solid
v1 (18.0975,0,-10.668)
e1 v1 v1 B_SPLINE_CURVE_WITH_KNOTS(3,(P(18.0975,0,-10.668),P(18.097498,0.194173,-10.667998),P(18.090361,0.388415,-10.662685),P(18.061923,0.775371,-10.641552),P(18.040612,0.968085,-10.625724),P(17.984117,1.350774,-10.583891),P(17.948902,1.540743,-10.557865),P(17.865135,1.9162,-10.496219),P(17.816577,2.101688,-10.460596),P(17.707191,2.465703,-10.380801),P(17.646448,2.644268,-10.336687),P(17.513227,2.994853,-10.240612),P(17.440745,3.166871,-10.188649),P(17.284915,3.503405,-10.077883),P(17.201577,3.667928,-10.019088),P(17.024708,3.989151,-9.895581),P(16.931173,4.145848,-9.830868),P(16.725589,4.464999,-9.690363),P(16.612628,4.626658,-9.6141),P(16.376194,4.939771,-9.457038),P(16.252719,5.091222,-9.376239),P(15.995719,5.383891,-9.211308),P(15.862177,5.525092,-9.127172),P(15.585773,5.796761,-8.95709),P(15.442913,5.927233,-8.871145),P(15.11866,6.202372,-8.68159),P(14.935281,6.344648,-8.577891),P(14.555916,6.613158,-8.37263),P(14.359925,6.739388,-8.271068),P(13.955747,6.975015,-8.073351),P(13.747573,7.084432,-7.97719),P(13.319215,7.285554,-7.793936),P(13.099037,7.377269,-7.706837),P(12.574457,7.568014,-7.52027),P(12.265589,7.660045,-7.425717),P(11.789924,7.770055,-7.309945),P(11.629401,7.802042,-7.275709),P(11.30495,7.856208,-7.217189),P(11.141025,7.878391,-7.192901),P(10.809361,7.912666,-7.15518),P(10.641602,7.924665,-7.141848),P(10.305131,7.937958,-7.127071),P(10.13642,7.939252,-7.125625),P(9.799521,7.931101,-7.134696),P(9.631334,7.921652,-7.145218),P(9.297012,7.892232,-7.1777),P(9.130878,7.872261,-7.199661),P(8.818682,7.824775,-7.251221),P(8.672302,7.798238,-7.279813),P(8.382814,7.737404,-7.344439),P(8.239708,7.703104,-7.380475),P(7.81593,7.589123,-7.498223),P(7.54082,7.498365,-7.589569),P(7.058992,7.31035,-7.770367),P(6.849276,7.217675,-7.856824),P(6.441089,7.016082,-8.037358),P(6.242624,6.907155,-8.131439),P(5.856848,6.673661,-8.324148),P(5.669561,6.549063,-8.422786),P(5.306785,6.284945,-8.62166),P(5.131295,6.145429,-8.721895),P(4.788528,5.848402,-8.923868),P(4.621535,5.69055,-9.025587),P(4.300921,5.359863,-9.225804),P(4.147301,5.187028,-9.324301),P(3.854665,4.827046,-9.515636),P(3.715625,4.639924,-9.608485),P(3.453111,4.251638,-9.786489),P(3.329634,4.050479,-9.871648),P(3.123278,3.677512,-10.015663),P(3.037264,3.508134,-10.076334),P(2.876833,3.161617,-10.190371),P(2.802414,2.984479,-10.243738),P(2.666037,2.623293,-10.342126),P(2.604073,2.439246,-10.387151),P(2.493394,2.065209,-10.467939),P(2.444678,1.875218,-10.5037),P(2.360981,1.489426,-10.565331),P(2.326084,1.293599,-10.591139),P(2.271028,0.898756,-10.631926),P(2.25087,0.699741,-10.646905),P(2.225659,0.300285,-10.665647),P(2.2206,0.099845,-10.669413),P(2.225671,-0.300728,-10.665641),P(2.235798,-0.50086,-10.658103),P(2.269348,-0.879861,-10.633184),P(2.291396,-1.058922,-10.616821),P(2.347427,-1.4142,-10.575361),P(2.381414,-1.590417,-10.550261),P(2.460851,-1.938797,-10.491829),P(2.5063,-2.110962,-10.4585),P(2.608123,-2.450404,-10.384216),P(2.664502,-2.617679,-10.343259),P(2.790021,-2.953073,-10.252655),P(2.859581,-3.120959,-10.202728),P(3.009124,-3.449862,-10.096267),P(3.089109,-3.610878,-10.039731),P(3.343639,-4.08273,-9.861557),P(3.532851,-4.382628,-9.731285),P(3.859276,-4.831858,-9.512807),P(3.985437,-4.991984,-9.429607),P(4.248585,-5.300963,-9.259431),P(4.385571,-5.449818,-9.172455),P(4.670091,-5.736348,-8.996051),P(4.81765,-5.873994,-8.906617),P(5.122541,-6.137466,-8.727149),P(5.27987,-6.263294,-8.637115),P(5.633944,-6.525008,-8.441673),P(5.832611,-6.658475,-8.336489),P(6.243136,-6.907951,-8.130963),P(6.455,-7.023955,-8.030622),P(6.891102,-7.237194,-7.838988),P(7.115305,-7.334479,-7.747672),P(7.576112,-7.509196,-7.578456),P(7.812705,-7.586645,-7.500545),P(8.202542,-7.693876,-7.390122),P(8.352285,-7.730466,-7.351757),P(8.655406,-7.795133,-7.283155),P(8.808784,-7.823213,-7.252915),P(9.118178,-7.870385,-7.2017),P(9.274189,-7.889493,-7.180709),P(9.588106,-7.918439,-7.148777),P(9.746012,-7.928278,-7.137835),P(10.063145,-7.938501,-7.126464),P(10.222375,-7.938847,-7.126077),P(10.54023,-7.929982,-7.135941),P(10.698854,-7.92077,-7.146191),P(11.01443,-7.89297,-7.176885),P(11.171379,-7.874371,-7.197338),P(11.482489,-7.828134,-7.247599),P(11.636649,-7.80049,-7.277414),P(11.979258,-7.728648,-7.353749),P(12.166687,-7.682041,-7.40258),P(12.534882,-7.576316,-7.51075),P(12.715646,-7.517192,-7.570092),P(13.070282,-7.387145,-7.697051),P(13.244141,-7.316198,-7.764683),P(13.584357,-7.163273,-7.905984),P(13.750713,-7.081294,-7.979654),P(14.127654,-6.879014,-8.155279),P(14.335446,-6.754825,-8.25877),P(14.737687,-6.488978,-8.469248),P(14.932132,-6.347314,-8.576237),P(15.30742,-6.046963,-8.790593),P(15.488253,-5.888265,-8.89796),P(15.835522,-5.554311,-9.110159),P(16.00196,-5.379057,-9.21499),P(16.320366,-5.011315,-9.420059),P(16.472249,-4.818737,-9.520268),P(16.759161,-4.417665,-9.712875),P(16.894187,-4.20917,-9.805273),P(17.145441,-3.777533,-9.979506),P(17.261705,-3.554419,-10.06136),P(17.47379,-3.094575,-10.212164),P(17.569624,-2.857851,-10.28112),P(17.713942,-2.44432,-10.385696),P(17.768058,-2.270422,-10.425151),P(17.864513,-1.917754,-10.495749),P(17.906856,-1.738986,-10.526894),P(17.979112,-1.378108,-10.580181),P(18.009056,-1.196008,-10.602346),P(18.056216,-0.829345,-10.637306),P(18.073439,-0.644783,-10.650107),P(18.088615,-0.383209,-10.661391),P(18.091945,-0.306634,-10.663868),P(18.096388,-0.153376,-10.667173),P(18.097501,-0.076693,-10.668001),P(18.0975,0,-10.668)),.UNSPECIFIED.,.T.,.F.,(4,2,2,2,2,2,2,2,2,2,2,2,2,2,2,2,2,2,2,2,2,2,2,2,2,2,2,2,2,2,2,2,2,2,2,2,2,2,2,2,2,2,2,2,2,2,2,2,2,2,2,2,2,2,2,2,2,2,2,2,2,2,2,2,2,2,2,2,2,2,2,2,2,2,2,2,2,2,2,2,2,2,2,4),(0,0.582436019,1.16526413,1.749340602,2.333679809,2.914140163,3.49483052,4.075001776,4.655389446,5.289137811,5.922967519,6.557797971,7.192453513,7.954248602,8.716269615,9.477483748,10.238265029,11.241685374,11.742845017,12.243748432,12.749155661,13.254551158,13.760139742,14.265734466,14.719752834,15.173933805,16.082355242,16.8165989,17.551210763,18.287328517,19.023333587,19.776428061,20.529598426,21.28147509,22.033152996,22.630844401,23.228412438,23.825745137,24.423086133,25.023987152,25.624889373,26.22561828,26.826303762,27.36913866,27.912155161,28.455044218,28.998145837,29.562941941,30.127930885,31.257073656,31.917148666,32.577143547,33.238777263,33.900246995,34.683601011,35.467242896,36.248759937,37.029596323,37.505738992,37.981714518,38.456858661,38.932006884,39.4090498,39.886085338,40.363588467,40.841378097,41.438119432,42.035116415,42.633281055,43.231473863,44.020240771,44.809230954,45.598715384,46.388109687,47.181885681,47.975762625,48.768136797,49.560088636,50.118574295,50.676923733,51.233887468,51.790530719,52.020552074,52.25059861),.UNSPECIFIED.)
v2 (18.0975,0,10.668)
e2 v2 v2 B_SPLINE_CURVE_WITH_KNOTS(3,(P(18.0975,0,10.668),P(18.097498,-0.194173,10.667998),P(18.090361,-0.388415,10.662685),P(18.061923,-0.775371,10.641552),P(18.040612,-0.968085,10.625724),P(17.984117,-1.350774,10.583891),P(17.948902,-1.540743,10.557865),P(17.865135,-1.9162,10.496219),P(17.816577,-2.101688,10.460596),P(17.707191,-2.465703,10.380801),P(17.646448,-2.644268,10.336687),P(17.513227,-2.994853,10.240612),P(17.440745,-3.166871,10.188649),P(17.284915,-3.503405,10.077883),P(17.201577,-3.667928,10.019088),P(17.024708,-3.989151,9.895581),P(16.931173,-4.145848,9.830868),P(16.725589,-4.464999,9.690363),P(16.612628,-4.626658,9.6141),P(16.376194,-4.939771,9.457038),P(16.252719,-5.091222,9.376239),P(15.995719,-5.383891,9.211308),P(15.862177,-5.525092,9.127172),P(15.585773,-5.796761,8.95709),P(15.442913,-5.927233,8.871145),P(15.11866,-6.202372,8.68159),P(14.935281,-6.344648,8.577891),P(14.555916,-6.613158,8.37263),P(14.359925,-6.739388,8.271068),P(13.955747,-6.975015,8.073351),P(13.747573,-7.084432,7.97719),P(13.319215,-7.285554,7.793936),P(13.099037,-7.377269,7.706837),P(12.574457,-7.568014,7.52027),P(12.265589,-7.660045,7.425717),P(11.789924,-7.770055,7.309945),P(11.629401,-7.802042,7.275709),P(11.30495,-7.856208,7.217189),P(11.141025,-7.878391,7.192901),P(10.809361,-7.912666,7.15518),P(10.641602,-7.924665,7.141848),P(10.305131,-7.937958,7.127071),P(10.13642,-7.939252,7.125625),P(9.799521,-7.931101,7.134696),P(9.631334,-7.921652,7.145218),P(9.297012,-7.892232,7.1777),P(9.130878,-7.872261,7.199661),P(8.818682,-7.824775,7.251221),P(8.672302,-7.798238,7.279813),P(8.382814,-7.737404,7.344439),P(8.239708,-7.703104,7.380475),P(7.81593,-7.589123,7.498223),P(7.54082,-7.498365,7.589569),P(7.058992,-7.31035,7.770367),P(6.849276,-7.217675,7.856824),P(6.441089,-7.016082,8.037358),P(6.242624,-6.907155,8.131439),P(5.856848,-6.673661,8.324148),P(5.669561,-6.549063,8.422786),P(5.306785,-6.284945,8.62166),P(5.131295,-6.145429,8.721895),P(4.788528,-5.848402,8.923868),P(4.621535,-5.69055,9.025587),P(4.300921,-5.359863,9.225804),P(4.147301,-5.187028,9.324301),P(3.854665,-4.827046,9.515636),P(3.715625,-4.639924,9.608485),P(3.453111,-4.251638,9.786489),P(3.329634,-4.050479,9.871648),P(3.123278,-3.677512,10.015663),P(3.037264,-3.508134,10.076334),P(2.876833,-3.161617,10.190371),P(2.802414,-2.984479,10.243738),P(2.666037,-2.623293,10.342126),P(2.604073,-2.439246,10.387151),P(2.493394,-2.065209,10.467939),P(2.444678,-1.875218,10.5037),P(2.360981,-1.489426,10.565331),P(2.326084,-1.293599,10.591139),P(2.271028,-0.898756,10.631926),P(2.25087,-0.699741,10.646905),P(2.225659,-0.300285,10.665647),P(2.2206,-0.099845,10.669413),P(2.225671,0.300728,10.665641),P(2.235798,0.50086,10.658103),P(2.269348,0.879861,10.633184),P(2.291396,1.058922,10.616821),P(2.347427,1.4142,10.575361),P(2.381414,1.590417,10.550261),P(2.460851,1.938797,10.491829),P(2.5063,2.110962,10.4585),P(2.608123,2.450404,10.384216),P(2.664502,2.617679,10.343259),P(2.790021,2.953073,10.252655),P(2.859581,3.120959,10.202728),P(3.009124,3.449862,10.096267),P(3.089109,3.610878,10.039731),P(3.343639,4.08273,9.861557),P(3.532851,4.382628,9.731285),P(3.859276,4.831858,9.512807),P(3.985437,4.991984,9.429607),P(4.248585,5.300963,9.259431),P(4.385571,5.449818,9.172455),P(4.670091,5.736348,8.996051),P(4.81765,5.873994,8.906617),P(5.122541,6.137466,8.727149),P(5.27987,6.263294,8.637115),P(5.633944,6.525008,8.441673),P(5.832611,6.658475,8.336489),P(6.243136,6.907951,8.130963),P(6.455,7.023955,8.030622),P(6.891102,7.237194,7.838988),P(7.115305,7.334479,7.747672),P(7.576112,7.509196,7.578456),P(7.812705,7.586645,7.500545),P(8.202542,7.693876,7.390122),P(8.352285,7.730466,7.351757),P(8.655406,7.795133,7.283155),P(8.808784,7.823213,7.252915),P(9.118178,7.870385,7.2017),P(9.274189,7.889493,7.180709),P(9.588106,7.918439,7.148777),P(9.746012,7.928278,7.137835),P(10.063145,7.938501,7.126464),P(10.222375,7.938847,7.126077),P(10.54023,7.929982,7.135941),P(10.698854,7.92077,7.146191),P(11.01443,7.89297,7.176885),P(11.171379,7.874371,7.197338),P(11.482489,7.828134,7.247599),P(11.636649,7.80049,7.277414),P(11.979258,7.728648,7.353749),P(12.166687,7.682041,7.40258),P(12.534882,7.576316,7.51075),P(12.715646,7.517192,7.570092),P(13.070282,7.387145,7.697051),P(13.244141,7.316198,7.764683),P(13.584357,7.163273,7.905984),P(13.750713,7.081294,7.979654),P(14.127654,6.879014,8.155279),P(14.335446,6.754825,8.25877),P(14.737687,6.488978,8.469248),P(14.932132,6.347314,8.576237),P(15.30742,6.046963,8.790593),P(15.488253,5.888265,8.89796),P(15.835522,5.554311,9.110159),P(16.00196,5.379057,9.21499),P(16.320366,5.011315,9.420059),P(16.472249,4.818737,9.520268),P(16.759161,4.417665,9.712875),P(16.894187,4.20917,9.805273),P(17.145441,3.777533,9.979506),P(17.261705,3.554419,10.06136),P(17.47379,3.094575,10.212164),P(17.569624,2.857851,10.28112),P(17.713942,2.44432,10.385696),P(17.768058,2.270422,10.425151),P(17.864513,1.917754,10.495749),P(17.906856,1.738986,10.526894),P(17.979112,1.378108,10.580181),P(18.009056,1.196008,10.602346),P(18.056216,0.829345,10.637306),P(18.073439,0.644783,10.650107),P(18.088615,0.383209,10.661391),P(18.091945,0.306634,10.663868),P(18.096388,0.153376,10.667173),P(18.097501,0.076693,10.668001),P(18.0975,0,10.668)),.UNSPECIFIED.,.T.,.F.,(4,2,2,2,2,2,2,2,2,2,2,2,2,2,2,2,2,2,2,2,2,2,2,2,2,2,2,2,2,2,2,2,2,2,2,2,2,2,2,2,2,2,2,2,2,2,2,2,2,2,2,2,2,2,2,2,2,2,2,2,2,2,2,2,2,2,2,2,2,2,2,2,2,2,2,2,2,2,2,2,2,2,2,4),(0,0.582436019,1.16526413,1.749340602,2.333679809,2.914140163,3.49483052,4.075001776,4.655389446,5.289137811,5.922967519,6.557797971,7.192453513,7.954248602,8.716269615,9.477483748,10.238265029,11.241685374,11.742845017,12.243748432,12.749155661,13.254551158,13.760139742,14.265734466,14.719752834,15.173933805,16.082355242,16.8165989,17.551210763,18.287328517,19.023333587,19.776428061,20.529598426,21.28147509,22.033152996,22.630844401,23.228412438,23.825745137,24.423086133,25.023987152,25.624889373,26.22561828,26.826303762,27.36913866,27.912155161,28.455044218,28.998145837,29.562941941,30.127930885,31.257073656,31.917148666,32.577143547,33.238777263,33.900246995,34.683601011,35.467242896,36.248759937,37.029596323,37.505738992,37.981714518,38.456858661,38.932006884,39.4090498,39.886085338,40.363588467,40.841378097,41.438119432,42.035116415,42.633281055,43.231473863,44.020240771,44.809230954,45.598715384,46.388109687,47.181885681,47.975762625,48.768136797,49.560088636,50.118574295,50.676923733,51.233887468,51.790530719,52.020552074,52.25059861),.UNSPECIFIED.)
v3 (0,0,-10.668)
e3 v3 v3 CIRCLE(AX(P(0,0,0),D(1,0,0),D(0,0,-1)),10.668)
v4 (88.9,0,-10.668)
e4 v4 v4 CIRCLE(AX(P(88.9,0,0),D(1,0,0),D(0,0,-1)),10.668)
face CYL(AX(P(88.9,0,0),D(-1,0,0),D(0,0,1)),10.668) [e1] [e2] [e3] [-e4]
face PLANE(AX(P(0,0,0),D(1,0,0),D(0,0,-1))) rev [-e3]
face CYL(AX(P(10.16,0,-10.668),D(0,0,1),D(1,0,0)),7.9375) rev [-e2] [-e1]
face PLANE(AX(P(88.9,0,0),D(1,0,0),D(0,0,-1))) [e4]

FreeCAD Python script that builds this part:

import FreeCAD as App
import Part
import Sketcher
Q = App.Units.Quantity

doc = App.newDocument("Part")
body = doc.addObject("PartDesign::Body", "Body")

# Sketch on YZ plane
sketch1 = body.newObject("Sketcher::SketchObject", "Sketch")
sketch1.AttachmentSupport = (doc.getObject("YZ_Plane"), [""])
sketch1.MapMode = "FlatFace"
sketch1.addGeometry(Part.Circle(App.Vector(0, 0, 0), App.Vector(0, 0, 1), 11), False)
sketch1.addConstraint(Sketcher.Constraint("Coincident", 0, 3, -1, 1))
sketch1.addConstraint(Sketcher.Constraint("Diameter", 0, Q("0.84 in")))
pad1 = body.newObject("PartDesign::Pad", "Pad")
pad1.Profile = sketch1
pad1.Length = Q("3.5 in")

# Sketch on XY plane
sketch2 = body.newObject("Sketcher::SketchObject", "Sketch001")
sketch2.AttachmentSupport = (doc.getObject("XY_Plane"), [""])
sketch2.MapMode = "FlatFace"
sketch2.addGeometry(Part.Circle(App.Vector(10, 0, 0), App.Vector(0, 0, 1), 8), False)
sketch2.addConstraint(Sketcher.Constraint("PointOnObject", 0, 3, -1))
sketch2.addConstraint(Sketcher.Constraint("Diameter", 0, Q("0.625 in")))
sketch2.addConstraint(Sketcher.Constraint("DistanceX", -1, 1, 0, 3, Q("0.4 in")))
pocket1 = body.newObject("PartDesign::Pocket", "Pocket")
pocket1.Profile = sketch2
pocket1.Type = "ThroughAll"
pocket1.Midplane = True

doc.recompute()
